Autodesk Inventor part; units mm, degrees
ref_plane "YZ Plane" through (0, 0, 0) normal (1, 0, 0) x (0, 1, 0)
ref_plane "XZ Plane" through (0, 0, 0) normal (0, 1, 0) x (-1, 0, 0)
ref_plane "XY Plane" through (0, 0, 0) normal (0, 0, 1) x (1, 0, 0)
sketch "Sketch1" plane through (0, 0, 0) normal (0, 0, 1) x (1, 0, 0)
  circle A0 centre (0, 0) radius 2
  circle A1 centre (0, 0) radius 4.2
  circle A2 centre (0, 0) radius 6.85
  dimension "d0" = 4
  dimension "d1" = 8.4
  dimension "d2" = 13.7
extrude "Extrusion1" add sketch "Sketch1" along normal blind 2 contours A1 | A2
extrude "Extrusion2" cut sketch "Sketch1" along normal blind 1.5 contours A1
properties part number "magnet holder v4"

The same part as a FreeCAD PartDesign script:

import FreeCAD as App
import Part
import Sketcher

doc = App.newDocument("Part")
body = doc.addObject("PartDesign::Body", "Body")

sketch1 = body.newObject("Sketcher::SketchObject", "Sketch")
sketch1.AttachmentSupport = (doc.getObject("XY_Plane"), [""])
sketch1.MapMode = "FlatFace"
sketch1.addGeometry(Part.Circle(App.Vector(0, 0, 0), App.Vector(0, 0, 1), 6.8), False)
sketch1.addGeometry(Part.Circle(App.Vector(0, 0, 0), App.Vector(0, 0, 1), 2), False)
sketch1.addConstraint(Sketcher.Constraint("Coincident", 0, 3, -1, 1))
sketch1.addConstraint(Sketcher.Constraint("Coincident", 1, 3, -1, 1))
sketch1.addConstraint(Sketcher.Constraint("Diameter", 1, 4.0))
sketch1.addConstraint(Sketcher.Constraint("Diameter", 0, 13.7))
pad1 = body.newObject("PartDesign::Pad", "Pad")
pad1.Profile = sketch1
pad1.Length = 2

sketch2 = body.newObject("Sketcher::SketchObject", "Sketch001")
sketch2.AttachmentSupport = (doc.getObject("XY_Plane"), [""])
sketch2.MapMode = "FlatFace"
sketch2.addGeometry(Part.Circle(App.Vector(0, 0, 0), App.Vector(0, 0, 1), 4.2), False)
sketch2.addGeometry(Part.Circle(App.Vector(0, 0, 0), App.Vector(0, 0, 1), 2), False)
sketch2.addConstraint(Sketcher.Constraint("Coincident", 0, 3, -1, 1))
sketch2.addConstraint(Sketcher.Constraint("Coincident", 1, 3, -1, 1))
sketch2.addConstraint(Sketcher.Constraint("Diameter", 1, 4.0))
sketch2.addConstraint(Sketcher.Constraint("Diameter", 0, 8.4))
pocket1 = body.newObject("PartDesign::Pocket", "Pocket")
pocket1.Profile = sketch2
pocket1.Length = 1.5
pocket1.Reversed = True

doc.recompute()
